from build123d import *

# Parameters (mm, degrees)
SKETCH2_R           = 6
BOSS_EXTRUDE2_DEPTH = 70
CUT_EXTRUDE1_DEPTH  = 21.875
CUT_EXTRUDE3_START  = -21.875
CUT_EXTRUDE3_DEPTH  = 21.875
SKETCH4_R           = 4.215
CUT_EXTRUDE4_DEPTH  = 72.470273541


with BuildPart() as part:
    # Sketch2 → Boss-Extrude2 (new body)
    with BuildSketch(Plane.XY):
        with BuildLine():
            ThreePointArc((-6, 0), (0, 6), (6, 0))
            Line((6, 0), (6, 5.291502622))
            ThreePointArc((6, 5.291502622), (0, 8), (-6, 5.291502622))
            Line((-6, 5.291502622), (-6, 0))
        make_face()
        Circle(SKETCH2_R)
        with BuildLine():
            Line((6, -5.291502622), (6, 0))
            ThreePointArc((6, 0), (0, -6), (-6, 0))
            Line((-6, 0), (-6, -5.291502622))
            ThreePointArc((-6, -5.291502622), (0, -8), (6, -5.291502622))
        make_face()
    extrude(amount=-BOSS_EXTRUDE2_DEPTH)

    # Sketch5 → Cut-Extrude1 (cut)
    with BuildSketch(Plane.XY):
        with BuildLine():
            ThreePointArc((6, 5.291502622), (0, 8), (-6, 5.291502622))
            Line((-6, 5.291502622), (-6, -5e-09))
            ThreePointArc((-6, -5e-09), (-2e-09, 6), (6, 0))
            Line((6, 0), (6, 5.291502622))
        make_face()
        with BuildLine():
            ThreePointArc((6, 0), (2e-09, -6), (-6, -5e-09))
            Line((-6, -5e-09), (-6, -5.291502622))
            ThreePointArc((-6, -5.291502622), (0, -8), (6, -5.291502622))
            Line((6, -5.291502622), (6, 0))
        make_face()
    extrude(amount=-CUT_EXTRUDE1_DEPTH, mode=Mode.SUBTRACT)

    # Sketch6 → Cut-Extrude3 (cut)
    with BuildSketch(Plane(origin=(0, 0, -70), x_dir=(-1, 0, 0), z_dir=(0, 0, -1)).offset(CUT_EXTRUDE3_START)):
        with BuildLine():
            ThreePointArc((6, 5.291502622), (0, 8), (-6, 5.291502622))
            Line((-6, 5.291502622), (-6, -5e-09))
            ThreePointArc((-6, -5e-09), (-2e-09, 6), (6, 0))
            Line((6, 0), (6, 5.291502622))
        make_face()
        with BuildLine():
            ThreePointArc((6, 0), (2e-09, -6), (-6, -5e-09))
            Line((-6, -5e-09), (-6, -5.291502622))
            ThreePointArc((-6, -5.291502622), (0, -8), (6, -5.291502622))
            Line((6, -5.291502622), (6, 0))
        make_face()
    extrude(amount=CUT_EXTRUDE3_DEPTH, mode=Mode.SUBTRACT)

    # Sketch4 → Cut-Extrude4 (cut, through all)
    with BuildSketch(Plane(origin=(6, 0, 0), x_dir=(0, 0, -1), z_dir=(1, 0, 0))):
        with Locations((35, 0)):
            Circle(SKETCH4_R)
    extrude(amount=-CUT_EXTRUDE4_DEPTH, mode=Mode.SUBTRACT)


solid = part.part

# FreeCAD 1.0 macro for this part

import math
import FreeCAD as App
import Part
import Sketcher
from FreeCAD import Vector

doc = App.newDocument("Part")
body = doc.addObject("PartDesign::Body", "Body")

sketch1 = doc.addObject("Sketcher::SketchObject", "Sketch")
body.addObject(sketch1)
sketch1.AttachmentSupport = (doc.XY_Plane, [""])
sketch1.MapMode = "FlatFace"
sketch1.addGeometry([
    Part.ArcOfCircle(Part.Circle(Vector(0, 0, 0), Vector(0, 0, 1), 8), math.radians(41.409622), math.radians(138.590378)),
    Part.LineSegment(Vector(-6, 5.291503, 0), Vector(-6, -5.291503, 0)),
    Part.ArcOfCircle(Part.Circle(Vector(0, 0, 0), Vector(0, 0, 1), 8), math.radians(-138.590378), math.radians(-41.409622)),
    Part.LineSegment(Vector(6, -5.291503, 0), Vector(6, 5.291503, 0)),
], False)
sketch1.addConstraint([
    Sketcher.Constraint("Coincident", 0, 2, 1, 1),
    Sketcher.Constraint("Coincident", 1, 2, 2, 1),
    Sketcher.Constraint("Coincident", 2, 2, 3, 1),
    Sketcher.Constraint("Coincident", 3, 2, 0, 1),
    Sketcher.Constraint("Vertical", 1),
    Sketcher.Constraint("Vertical", 3),
    Sketcher.Constraint("Coincident", 0, 3, -1, 1),
    Sketcher.Constraint("Coincident", 2, 3, -1, 1),
    Sketcher.Constraint("Equal", 0, 2),
    Sketcher.Constraint("Horizontal", 1, 2, 2, 2),
    Sketcher.Constraint("Radius", 0, 8.0),
    Sketcher.Constraint("DistanceX", 0, 2, -1, 1, 6.0),
])
pad1 = doc.addObject("PartDesign::Pad", "Pad")
body.addObject(pad1)
pad1.Profile = sketch1
pad1.Length = 70
pad1.Reversed = True

sketch2 = doc.addObject("Sketcher::SketchObject", "Sketch001")
body.addObject(sketch2)
sketch2.AttachmentSupport = (doc.XY_Plane, [""])
sketch2.MapMode = "FlatFace"
sketch2.addGeometry([
    Part.ArcOfCircle(Part.Circle(Vector(0, 0, 0), Vector(0, 0, 1), 8), math.radians(41.409622), math.radians(138.590378)),
    Part.LineSegment(Vector(-6, 5.291503, 0), Vector(-6, 0, 0)),
    Part.ArcOfCircle(Part.Circle(Vector(0, 0, 0), Vector(0, 0, 1), 6), math.radians(0), math.radians(180)),
    Part.LineSegment(Vector(6, 0, 0), Vector(6, 5.291503, 0)),
    Part.ArcOfCircle(Part.Circle(Vector(0, 0, 0), Vector(0, 0, 1), 6), math.radians(-180), math.radians(0)),
    Part.LineSegment(Vector(-6, 0, 0), Vector(-6, -5.291503, 0)),
    Part.ArcOfCircle(Part.Circle(Vector(0, 0, 0), Vector(0, 0, 1), 8), math.radians(-138.590378), math.radians(-41.409622)),
    Part.LineSegment(Vector(6, -5.291503, 0), Vector(6, 0, 0)),
], False)
sketch2.addConstraint([
    Sketcher.Constraint("Coincident", 0, 2, 1, 1),
    Sketcher.Constraint("Tangent", 1, 2, 2, 2),
    Sketcher.Constraint("Tangent", 2, 1, 3, 1),
    Sketcher.Constraint("Coincident", 3, 2, 0, 1),
    Sketcher.Constraint("Tangent", 4, 1, 5, 1),
    Sketcher.Constraint("Coincident", 5, 2, 6, 1),
    Sketcher.Constraint("Coincident", 6, 2, 7, 1),
    Sketcher.Constraint("Tangent", 7, 2, 4, 2),
    Sketcher.Constraint("Vertical", 1),
    Sketcher.Constraint("Vertical", 3),
    Sketcher.Constraint("Vertical", 5),
    Sketcher.Constraint("Vertical", 7),
    Sketcher.Constraint("Coincident", 0, 3, -1, 1),
    Sketcher.Constraint("Coincident", 2, 3, -1, 1),
    Sketcher.Constraint("Coincident", 4, 3, -1, 1),
    Sketcher.Constraint("Coincident", 6, 3, -1, 1),
    Sketcher.Constraint("Equal", 2, 4),
    Sketcher.Constraint("Equal", 0, 6),
    Sketcher.Constraint("Radius", 0, 8.0),
    Sketcher.Constraint("Radius", 2, 6.0),
])
pocket1 = doc.addObject("PartDesign::Pocket", "Pocket")
body.addObject(pocket1)
pocket1.Profile = sketch2
pocket1.Length = 21.875

sketch3 = doc.addObject("Sketcher::SketchObject", "Sketch002")
body.addObject(sketch3)
sketch3.AttachmentSupport = (doc.XY_Plane, [""])
sketch3.MapMode = "FlatFace"
sketch3.AttachmentOffset = App.Placement(Vector(0, 0, -48.125), App.Rotation())
sketch3.addGeometry([
    Part.ArcOfCircle(Part.Circle(Vector(0, 0, 0), Vector(0, 0, 1), 8), math.radians(41.409622), math.radians(138.590378)),
    Part.LineSegment(Vector(6, 5.291503, 0), Vector(6, 0, 0)),
    Part.ArcOfCircle(Part.Circle(Vector(0, 0, 0), Vector(0, 0, 1), 6), math.radians(0), math.radians(180)),
    Part.LineSegment(Vector(-6, 0, 0), Vector(-6, 5.291503, 0)),
    Part.ArcOfCircle(Part.Circle(Vector(0, 0, 0), Vector(0, 0, 1), 6), math.radians(180), math.radians(360)),
    Part.LineSegment(Vector(6, 0, 0), Vector(6, -5.291503, 0)),
    Part.ArcOfCircle(Part.Circle(Vector(0, 0, 0), Vector(0, 0, 1), 8), math.radians(-138.590378), math.radians(-41.409622)),
    Part.LineSegment(Vector(-6, -5.291503, 0), Vector(-6, 0, 0)),
], False)
sketch3.addConstraint([
    Sketcher.Constraint("Coincident", 0, 1, 1, 1),
    Sketcher.Constraint("Tangent", 1, 2, 2, 1),
    Sketcher.Constraint("Tangent", 2, 2, 3, 1),
    Sketcher.Constraint("Coincident", 3, 2, 0, 2),
    Sketcher.Constraint("Tangent", 4, 2, 5, 1),
    Sketcher.Constraint("Coincident", 5, 2, 6, 2),
    Sketcher.Constraint("Coincident", 6, 1, 7, 1),
    Sketcher.Constraint("Tangent", 7, 2, 4, 1),
    Sketcher.Constraint("Vertical", 1),
    Sketcher.Constraint("Vertical", 3),
    Sketcher.Constraint("Vertical", 5),
    Sketcher.Constraint("Vertical", 7),
    Sketcher.Constraint("Coincident", 0, 3, -1, 1),
    Sketcher.Constraint("Coincident", 2, 3, -1, 1),
    Sketcher.Constraint("Coincident", 4, 3, -1, 1),
    Sketcher.Constraint("Coincident", 6, 3, -1, 1),
    Sketcher.Constraint("Equal", 2, 4),
    Sketcher.Constraint("Equal", 0, 6),
    Sketcher.Constraint("Radius", 0, 8.0),
    Sketcher.Constraint("Radius", 2, 6.0),
])
pocket2 = doc.addObject("PartDesign::Pocket", "Pocket001")
body.addObject(pocket2)
pocket2.Profile = sketch3
pocket2.Length = 21.875

sketch4 = doc.addObject("Sketcher::SketchObject", "Sketch003")
body.addObject(sketch4)
sketch4.AttachmentSupport = (doc.YZ_Plane, [""])
sketch4.MapMode = "FlatFace"
sketch4.AttachmentOffset = App.Placement(Vector(0, 0, 6), App.Rotation())
sketch4.addGeometry(Part.Circle(Vector(0, -35, 0), Vector(0, 0, 1), 4.215), False)
sketch4.addConstraint([
    Sketcher.Constraint("PointOnObject", 0, 3, -2),
    Sketcher.Constraint("Diameter", 0, 8.43),
    Sketcher.Constraint("DistanceY", 0, 3, -1, 1, 35.0),
])
pocket3 = doc.addObject("PartDesign::Pocket", "Pocket002")
body.addObject(pocket3)
pocket3.Profile = sketch4
pocket3.Type = "ThroughAll"

doc.recompute()
